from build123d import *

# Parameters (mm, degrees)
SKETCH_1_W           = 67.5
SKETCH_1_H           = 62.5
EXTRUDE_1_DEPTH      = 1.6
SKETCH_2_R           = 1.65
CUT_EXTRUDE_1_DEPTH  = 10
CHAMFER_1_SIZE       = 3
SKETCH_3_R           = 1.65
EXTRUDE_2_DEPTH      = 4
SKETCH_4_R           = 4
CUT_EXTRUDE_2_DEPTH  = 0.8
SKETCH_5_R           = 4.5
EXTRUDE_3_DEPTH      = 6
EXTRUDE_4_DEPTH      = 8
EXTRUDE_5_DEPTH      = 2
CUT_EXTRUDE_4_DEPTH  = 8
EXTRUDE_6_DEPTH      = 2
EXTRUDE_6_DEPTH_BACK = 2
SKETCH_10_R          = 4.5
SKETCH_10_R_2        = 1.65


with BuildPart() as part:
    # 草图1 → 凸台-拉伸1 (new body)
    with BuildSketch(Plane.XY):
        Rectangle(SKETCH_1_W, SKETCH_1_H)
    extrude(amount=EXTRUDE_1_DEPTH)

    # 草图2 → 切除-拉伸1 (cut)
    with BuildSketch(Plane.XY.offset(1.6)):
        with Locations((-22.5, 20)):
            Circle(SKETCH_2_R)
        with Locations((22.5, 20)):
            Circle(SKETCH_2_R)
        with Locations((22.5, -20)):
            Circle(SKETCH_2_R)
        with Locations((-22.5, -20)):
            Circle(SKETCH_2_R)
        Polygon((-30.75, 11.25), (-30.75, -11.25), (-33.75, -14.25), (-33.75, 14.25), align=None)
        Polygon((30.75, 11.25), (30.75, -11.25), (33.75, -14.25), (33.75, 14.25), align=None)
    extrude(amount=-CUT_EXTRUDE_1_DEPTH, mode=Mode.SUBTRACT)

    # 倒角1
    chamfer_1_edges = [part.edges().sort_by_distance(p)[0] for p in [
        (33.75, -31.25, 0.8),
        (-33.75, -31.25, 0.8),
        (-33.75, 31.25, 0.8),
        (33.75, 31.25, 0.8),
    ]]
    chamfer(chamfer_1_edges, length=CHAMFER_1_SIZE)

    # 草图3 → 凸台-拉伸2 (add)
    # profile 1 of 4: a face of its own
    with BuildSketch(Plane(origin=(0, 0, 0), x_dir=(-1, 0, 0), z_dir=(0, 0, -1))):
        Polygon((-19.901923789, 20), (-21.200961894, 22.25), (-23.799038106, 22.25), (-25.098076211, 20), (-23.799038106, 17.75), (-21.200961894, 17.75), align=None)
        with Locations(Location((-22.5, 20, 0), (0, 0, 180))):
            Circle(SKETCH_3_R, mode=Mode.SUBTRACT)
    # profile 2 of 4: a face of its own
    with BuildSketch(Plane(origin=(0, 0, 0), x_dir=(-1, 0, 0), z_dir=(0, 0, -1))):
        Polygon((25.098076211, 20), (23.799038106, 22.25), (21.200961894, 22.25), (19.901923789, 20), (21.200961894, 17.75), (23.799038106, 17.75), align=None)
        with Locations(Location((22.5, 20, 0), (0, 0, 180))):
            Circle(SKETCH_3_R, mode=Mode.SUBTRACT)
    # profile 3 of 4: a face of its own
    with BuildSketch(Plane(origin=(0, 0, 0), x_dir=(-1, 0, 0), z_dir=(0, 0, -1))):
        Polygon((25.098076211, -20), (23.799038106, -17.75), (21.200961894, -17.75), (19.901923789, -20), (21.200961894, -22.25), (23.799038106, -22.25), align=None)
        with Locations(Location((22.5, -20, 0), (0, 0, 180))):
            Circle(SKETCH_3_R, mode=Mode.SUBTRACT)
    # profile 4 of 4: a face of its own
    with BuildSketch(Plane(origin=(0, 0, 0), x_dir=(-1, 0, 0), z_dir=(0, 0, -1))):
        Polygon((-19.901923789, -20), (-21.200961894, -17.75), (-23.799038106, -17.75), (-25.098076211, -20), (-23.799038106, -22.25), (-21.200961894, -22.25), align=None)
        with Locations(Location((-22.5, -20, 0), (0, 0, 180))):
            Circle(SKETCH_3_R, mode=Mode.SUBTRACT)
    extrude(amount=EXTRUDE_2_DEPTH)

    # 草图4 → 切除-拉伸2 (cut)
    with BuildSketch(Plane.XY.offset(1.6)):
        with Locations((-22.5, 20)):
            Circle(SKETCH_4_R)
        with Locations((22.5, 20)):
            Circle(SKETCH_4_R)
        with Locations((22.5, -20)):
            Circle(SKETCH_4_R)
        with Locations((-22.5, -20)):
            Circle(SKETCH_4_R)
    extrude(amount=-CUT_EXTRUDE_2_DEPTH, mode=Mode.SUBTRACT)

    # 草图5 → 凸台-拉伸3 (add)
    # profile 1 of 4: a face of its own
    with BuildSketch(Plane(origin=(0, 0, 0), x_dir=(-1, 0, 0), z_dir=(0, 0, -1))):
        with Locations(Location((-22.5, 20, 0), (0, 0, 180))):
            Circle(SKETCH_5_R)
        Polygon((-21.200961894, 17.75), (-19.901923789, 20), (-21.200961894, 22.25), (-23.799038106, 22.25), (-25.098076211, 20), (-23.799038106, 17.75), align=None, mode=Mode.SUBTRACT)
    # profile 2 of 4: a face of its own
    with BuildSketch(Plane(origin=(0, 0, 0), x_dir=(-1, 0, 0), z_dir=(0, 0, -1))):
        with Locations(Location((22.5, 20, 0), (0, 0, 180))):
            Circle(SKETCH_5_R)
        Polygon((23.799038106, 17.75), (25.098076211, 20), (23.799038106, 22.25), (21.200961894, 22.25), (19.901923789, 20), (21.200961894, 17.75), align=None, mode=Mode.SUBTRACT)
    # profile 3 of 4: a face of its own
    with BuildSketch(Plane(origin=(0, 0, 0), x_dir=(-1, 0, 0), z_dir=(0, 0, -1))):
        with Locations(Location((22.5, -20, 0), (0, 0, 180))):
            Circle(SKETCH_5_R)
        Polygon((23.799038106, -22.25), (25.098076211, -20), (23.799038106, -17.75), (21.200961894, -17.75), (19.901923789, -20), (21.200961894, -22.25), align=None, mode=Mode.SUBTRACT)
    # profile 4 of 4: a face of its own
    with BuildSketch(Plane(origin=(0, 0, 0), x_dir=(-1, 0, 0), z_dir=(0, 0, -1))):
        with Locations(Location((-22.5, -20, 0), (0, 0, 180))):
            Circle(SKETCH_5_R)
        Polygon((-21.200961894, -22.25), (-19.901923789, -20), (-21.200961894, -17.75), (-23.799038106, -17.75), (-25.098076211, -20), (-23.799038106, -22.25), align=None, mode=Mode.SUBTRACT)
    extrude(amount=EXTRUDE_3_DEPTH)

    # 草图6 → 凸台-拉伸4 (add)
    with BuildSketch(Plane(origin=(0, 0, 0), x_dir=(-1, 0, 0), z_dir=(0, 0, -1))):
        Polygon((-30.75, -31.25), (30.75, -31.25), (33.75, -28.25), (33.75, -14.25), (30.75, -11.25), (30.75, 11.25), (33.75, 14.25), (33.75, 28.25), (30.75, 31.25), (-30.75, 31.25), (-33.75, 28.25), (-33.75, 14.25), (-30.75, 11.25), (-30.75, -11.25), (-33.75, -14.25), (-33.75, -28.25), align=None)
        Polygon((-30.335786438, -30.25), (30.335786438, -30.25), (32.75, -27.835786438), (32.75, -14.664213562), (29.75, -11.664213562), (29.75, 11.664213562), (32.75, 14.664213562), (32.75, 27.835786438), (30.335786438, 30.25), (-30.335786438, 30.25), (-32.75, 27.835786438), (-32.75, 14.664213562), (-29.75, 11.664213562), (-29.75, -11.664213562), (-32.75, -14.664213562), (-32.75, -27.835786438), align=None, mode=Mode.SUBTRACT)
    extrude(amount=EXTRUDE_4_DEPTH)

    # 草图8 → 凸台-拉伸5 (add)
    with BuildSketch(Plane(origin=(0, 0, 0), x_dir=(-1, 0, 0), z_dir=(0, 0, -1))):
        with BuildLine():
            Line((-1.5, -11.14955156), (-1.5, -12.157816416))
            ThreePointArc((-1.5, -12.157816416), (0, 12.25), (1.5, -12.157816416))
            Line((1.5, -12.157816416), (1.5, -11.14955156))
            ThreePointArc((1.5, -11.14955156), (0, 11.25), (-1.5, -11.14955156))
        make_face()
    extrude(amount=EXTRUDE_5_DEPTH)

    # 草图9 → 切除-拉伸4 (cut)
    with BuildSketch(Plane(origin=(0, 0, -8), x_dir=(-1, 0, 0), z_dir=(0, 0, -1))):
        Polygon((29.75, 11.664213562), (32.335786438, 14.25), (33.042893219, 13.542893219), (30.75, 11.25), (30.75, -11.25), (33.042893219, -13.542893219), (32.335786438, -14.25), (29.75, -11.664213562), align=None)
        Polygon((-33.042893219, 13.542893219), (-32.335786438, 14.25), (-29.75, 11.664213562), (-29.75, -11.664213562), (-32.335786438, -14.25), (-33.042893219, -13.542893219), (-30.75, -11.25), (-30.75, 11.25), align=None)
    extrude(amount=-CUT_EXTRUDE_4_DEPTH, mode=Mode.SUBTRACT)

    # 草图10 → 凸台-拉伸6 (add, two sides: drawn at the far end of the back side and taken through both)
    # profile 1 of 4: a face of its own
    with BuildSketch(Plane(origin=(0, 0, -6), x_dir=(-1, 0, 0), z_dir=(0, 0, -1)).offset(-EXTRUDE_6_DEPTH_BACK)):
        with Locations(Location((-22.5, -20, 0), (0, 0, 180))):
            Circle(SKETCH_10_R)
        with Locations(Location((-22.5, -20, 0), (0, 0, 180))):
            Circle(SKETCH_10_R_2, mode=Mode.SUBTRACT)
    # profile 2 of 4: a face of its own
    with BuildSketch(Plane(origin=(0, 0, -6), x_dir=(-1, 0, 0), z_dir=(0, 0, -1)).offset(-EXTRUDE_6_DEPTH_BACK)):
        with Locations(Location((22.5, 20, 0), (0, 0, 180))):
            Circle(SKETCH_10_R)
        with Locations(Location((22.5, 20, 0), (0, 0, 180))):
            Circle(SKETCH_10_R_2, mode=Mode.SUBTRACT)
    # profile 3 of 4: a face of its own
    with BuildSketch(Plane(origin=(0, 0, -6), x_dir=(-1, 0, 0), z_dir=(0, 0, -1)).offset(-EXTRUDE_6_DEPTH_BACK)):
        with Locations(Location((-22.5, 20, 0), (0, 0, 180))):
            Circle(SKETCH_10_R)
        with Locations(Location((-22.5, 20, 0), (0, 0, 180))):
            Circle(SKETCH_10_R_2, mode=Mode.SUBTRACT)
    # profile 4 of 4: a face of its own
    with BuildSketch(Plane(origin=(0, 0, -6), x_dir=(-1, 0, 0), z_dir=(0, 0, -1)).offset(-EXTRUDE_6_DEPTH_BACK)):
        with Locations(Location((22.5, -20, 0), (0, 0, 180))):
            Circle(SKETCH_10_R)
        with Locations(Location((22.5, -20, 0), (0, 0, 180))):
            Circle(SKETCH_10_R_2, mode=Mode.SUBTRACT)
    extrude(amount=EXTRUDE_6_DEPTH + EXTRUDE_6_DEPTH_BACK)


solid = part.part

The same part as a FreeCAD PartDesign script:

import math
import FreeCAD as App
import Part
import Sketcher

V = App.Vector
Q = App.Units.Quantity


def edges_at(feature, points):
    """Names of the edges that pass closest to the given points."""
    edges = feature.Shape.Edges
    near = lambda p: min(range(len(edges)), key=lambda i: edges[i].distToShape(Part.Vertex(*p))[0])
    return sorted({f"Edge{near(p) + 1}" for p in points})


def add_polygon(sketch, points):
    """Adds a closed chain of lines whose ends are joined by coincident constraints."""
    first, n = sketch.GeometryCount, len(points)
    for a, b in zip(points, points[1:] + points[:1]):
        sketch.addGeometry(Part.LineSegment(App.Vector(*a, 0), App.Vector(*b, 0)), False)
    for i in range(n):
        sketch.addConstraint(Sketcher.Constraint("Coincident", first + i, 2, first + (i + 1) % n, 1))

doc = App.newDocument("Part")
body = doc.addObject("PartDesign::Body", "Body")

# Sketch on XY plane
sketch1 = body.newObject("Sketcher::SketchObject", "Sketch")
sketch1.AttachmentSupport = (doc.getObject("XY_Plane"), [""])
sketch1.MapMode = "FlatFace"
add_polygon(sketch1, [(-34, 31), (-34, -31), (34, -31), (34, 31)])  # lines 0-3
sketch1.addConstraint([
    Sketcher.Constraint("Vertical", 0),
    Sketcher.Constraint("Horizontal", 1),
    Sketcher.Constraint("Vertical", 2),
    Sketcher.Constraint("Horizontal", 3),
    Sketcher.Constraint("Symmetric", 0, 2, 2, 2, -1, 1),
    Sketcher.Constraint("DistanceX", 1, 1, 1, 2, 67.5),
    Sketcher.Constraint("DistanceY", 0, 2, 0, 1, 62.5),
])
pad1 = body.newObject("PartDesign::Pad", "Pad")
pad1.Profile = sketch1
pad1.Length = 1.6

# Sketch on XY plane
sketch2 = body.newObject("Sketcher::SketchObject", "Sketch001")
sketch2.AttachmentSupport = (doc.getObject("XY_Plane"), [""])
sketch2.MapMode = "FlatFace"
sketch2.AttachmentOffset = App.Placement(V(0, 0, 1.6), App.Rotation())
sketch2.addGeometry(Part.Circle(V(-22.5, 20, 0), V(0, 0, 1), 1.6), False)  # 0
sketch2.addGeometry(Part.Circle(V(22.5, 20, 0), V(0, 0, 1), 1.6), False)  # 1
sketch2.addGeometry(Part.Circle(V(22.5, -20, 0), V(0, 0, 1), 1.6), False)  # 2
sketch2.addGeometry(Part.Circle(V(-22.5, -20, 0), V(0, 0, 1), 1.6), False)  # 3
add_polygon(sketch2, [(-30.8, -11.2), (-30.8, 11.2), (-33.8, 14.2), (-33.8, -14.2)])  # lines 4-7
add_polygon(sketch2, [(30.8, 11.2), (30.8, -11.2), (33.8, -14.2), (33.8, 14.2)])  # lines 8-11
sketch2.addConstraint([
    Sketcher.Constraint("Vertical", 4),
    Sketcher.Constraint("Vertical", 6),
    Sketcher.Constraint("Vertical", 8),
    Sketcher.Constraint("Vertical", 10),
    Sketcher.Constraint("Equal", 0, 1),
    Sketcher.Constraint("Equal", 1, 2),
    Sketcher.Constraint("Equal", 2, 3),
    Sketcher.Constraint("Symmetric", 0, 3, 2, 3, -1, 1),
    Sketcher.Constraint("Symmetric", 1, 3, 3, 3, -1, 1),
    Sketcher.Constraint("Symmetric", 4, 2, 8, 2, -1, 1),
    Sketcher.Constraint("Symmetric", 5, 2, 9, 2, -1, 1),
    Sketcher.Constraint("Symmetric", 0, 3, 1, 3, -2),
    Sketcher.Constraint("Perpendicular", 5, 7),
    Sketcher.Constraint("Perpendicular", 9, 11),
    Sketcher.Constraint("Horizontal", 7, 2, 8, 2),
    Sketcher.Constraint("Horizontal", 6, 2, 9, 2),
    Sketcher.Constraint("Horizontal", 5, 2, 10, 2),
    Sketcher.Constraint("Diameter", 0, 3.3),
    Sketcher.Constraint("DistanceY", 4, 1, 4, 2, 22.5),
    Sketcher.Constraint("DistanceY", 6, 2, 6, 1, 28.5),
    Sketcher.Constraint("DistanceY", -1, 1, 0, 3, 20.0),
    Sketcher.Constraint("DistanceX", 0, 3, 1, 3, 45.0),
    Sketcher.Constraint("DistanceX", 7, 2, 8, 2, 61.5),
])
pocket1 = body.newObject("PartDesign::Pocket", "Pocket")
pocket1.Profile = sketch2
pocket1.Length = 10
doc.recompute()

chamfer = body.newObject("PartDesign::Chamfer", "Chamfer")
chamfer.Base = (pocket1, edges_at(pocket1, [
    (33.75, -31.25, 0.8),
    (-33.75, -31.25, 0.8),
    (-33.75, 31.25, 0.8),
    (33.75, 31.25, 0.8),
]))
chamfer.Size = 3

# Sketch on XY plane
sketch3 = body.newObject("Sketcher::SketchObject", "Sketch002")
sketch3.AttachmentSupport = (doc.getObject("XY_Plane"), [""])
sketch3.MapMode = "FlatFace"
add_polygon(sketch3, [(19.9, 20), (21.2, 22.2), (23.8, 22.2), (25.1, 20), (23.8, 17.8), (21.2, 17.8)])  # lines 0-5
sketch3.addGeometry(Part.Circle(V(22.5, 20, 0), V(0, 0, 1), 1.6), False)  # 6
add_polygon(sketch3, [(-25.1, 20), (-23.8, 22.2), (-21.2, 22.2), (-19.9, 20), (-21.2, 17.8), (-23.8, 17.8)])  # lines 7-12
sketch3.addGeometry(Part.Circle(V(-22.5, 20, 0), V(0, 0, 1), 1.6), False)  # 13
add_polygon(sketch3, [(-25.1, -20), (-23.8, -17.8), (-21.2, -17.8), (-19.9, -20), (-21.2, -22.2), (-23.8, -22.2)])  # lines 14-19
sketch3.addGeometry(Part.Circle(V(-22.5, -20, 0), V(0, 0, 1), 1.6), False)  # 20
add_polygon(sketch3, [(19.9, -20), (21.2, -17.8), (23.8, -17.8), (25.1, -20), (23.8, -22.2), (21.2, -22.2)])  # lines 21-26
sketch3.addGeometry(Part.Circle(V(22.5, -20, 0), V(0, 0, 1), 1.6), False)  # 27
sketch3.addConstraint([
    Sketcher.Constraint("Horizontal", 1),
    Sketcher.Constraint("Horizontal", 4),
    Sketcher.Constraint("Horizontal", 8),
    Sketcher.Constraint("Horizontal", 11),
    Sketcher.Constraint("Horizontal", 15),
    Sketcher.Constraint("Horizontal", 18),
    Sketcher.Constraint("Horizontal", 22),
    Sketcher.Constraint("Horizontal", 25),
    Sketcher.Constraint("Equal", 6, 13),
    Sketcher.Constraint("Equal", 13, 20),
    Sketcher.Constraint("Equal", 20, 27),
    Sketcher.Constraint("Symmetric", 6, 3, 20, 3, -1, 1),
    Sketcher.Constraint("Symmetric", 13, 3, 27, 3, -1, 1),
    Sketcher.Constraint("Symmetric", 3, 2, 14, 2, -1, 1),
    Sketcher.Constraint("Symmetric", 5, 2, 16, 2, -1, 1),
    Sketcher.Constraint("Symmetric", 0, 2, 17, 2, -1, 1),
    Sketcher.Constraint("Symmetric", 2, 2, 19, 2, -1, 1),
    Sketcher.Constraint("Symmetric", 10, 2, 21, 2, -1, 1),
    Sketcher.Constraint("Symmetric", 12, 2, 23, 2, -1, 1),
    Sketcher.Constraint("Symmetric", 7, 2, 24, 2, -1, 1),
    Sketcher.Constraint("Symmetric", 9, 2, 26, 2, -1, 1),
    Sketcher.Constraint("Symmetric", 6, 3, 13, 3, -2),
    Sketcher.Constraint("Symmetric", 1, 2, 7, 2, -2),
    Sketcher.Constraint("Symmetric", 5, 2, 9, 2, -2),
    Sketcher.Constraint("Symmetric", 4, 2, 10, 2, -2),
    Sketcher.Constraint("Symmetric", 2, 2, 12, 2, -2),
    Sketcher.Constraint("Parallel", 0, 3),
    Sketcher.Constraint("Parallel", 2, 5),
    Sketcher.Constraint("Parallel", 3, 7),
    Sketcher.Constraint("Parallel", 5, 9),
    Sketcher.Constraint("Parallel", 9, 12),
    Sketcher.Constraint("Parallel", 12, 16),
    Sketcher.Constraint("Parallel", 16, 19),
    Sketcher.Constraint("Parallel", 19, 23),
    Sketcher.Constraint("Parallel", 23, 26),
    Sketcher.Constraint("Horizontal", 13, 3, 2, 2),
    Sketcher.Constraint("Horizontal", 2, 2, 5, 2),
    Sketcher.Constraint("Vertical", 1, 2, 3, 2),
    Sketcher.Constraint("Diameter", 6, 3.3),
    Sketcher.Constraint("Angle", 0, Q("60 deg")),
    Sketcher.Constraint("DistanceY", -1, 1, 6, 3, 20.0),
    Sketcher.Constraint("DistanceX", 13, 3, 6, 3, 45.0),
    Sketcher.Constraint("DistanceX", 7, 2, 0, 2, 45.0),
    Sketcher.Constraint("DistanceY", 3, 2, 1, 2, 4.5),
    Sketcher.Constraint("DistanceX", 1, 1, 1, 2, 2.598076),
])
pad2 = body.newObject("PartDesign::Pad", "Pad001")
pad2.Profile = sketch3
pad2.Length = 4
pad2.Reversed = True

# Sketch on XY plane
sketch4 = body.newObject("Sketcher::SketchObject", "Sketch003")
sketch4.AttachmentSupport = (doc.getObject("XY_Plane"), [""])
sketch4.MapMode = "FlatFace"
sketch4.AttachmentOffset = App.Placement(V(0, 0, 1.6), App.Rotation())
sketch4.addGeometry([
    Part.Circle(V(-22.5, 20, 0), V(0, 0, 1), 4),
    Part.Circle(V(22.5, 20, 0), V(0, 0, 1), 4),
    Part.Circle(V(22.5, -20, 0), V(0, 0, 1), 4),
    Part.Circle(V(-22.5, -20, 0), V(0, 0, 1), 4),
], False)
sketch4.addConstraint([
    Sketcher.Constraint("Equal", 0, 1),
    Sketcher.Constraint("Equal", 1, 2),
    Sketcher.Constraint("Equal", 2, 3),
    Sketcher.Constraint("Symmetric", 0, 3, 2, 3, -1, 1),
    Sketcher.Constraint("Symmetric", 1, 3, 3, 3, -1, 1),
    Sketcher.Constraint("Symmetric", 0, 3, 1, 3, -2),
    Sketcher.Constraint("Diameter", 0, 8.0),
    Sketcher.Constraint("DistanceY", -1, 1, 0, 3, 20.0),
    Sketcher.Constraint("DistanceX", 0, 3, 1, 3, 45.0),
])
pocket2 = body.newObject("PartDesign::Pocket", "Pocket001")
pocket2.Profile = sketch4
pocket2.Length = 0.8

# Sketch on XY plane
sketch5 = body.newObject("Sketcher::SketchObject", "Sketch004")
sketch5.AttachmentSupport = (doc.getObject("XY_Plane"), [""])
sketch5.MapMode = "FlatFace"
sketch5.addGeometry(Part.Circle(V(22.5, 20, 0), V(0, 0, 1), 4.5), False)  # 0
add_polygon(sketch5, [(19.9, 20), (21.2, 17.8), (23.8, 17.8), (25.1, 20), (23.8, 22.2), (21.2, 22.2)])  # lines 1-6
sketch5.addGeometry(Part.Circle(V(-22.5, 20, 0), V(0, 0, 1), 4.5), False)  # 7
add_polygon(sketch5, [(-25.1, 20), (-23.8, 17.8), (-21.2, 17.8), (-19.9, 20), (-21.2, 22.2), (-23.8, 22.2)])  # lines 8-13
sketch5.addGeometry(Part.Circle(V(-22.5, -20, 0), V(0, 0, 1), 4.5), False)  # 14
add_polygon(sketch5, [(-25.1, -20), (-23.8, -22.2), (-21.2, -22.2), (-19.9, -20), (-21.2, -17.8), (-23.8, -17.8)])  # lines 15-20
sketch5.addGeometry(Part.Circle(V(22.5, -20, 0), V(0, 0, 1), 4.5), False)  # 21
add_polygon(sketch5, [(19.9, -20), (21.2, -22.2), (23.8, -22.2), (25.1, -20), (23.8, -17.8), (21.2, -17.8)])  # lines 22-27
sketch5.addConstraint([
    Sketcher.Constraint("Horizontal", 2),
    Sketcher.Constraint("Horizontal", 5),
    Sketcher.Constraint("Horizontal", 9),
    Sketcher.Constraint("Horizontal", 12),
    Sketcher.Constraint("Horizontal", 16),
    Sketcher.Constraint("Horizontal", 19),
    Sketcher.Constraint("Horizontal", 23),
    Sketcher.Constraint("Horizontal", 26),
    Sketcher.Constraint("Equal", 0, 7),
    Sketcher.Constraint("Equal", 7, 14),
    Sketcher.Constraint("Equal", 14, 21),
    Sketcher.Constraint("Symmetric", 0, 3, 14, 3, -1, 1),
    Sketcher.Constraint("Symmetric", 7, 3, 21, 3, -1, 1),
    Sketcher.Constraint("Symmetric", 4, 2, 15, 2, -1, 1),
    Sketcher.Constraint("Symmetric", 6, 2, 17, 2, -1, 1),
    Sketcher.Constraint("Symmetric", 1, 2, 18, 2, -1, 1),
    Sketcher.Constraint("Symmetric", 3, 2, 20, 2, -1, 1),
    Sketcher.Constraint("Symmetric", 11, 2, 22, 2, -1, 1),
    Sketcher.Constraint("Symmetric", 13, 2, 24, 2, -1, 1),
    Sketcher.Constraint("Symmetric", 8, 2, 25, 2, -1, 1),
    Sketcher.Constraint("Symmetric", 10, 2, 27, 2, -1, 1),
    Sketcher.Constraint("Symmetric", 0, 3, 7, 3, -2),
    Sketcher.Constraint("Symmetric", 2, 2, 8, 2, -2),
    Sketcher.Constraint("Symmetric", 6, 2, 10, 2, -2),
    Sketcher.Constraint("Symmetric", 5, 2, 11, 2, -2),
    Sketcher.Constraint("Symmetric", 3, 2, 13, 2, -2),
    Sketcher.Constraint("Parallel", 1, 4),
    Sketcher.Constraint("Parallel", 3, 6),
    Sketcher.Constraint("Parallel", 4, 8),
    Sketcher.Constraint("Parallel", 6, 10),
    Sketcher.Constraint("Parallel", 10, 13),
    Sketcher.Constraint("Parallel", 13, 17),
    Sketcher.Constraint("Parallel", 17, 20),
    Sketcher.Constraint("Parallel", 20, 24),
    Sketcher.Constraint("Parallel", 24, 27),
    Sketcher.Constraint("Horizontal", 7, 3, 3, 2),
    Sketcher.Constraint("Horizontal", 3, 2, 6, 2),
    Sketcher.Constraint("Vertical", 2, 2, 4, 2),
    Sketcher.Constraint("Diameter", 0, 9.0),
    Sketcher.Constraint("Angle", 1, Q("-60 deg")),
    Sketcher.Constraint("DistanceY", -1, 1, 0, 3, 20.0),
    Sketcher.Constraint("DistanceX", 7, 3, 0, 3, 45.0),
    Sketcher.Constraint("DistanceX", 8, 2, 1, 2, 45.0),
    Sketcher.Constraint("DistanceY", 2, 2, 4, 2, 4.5),
    Sketcher.Constraint("DistanceX", 2, 1, 2, 2, 2.598076),
])
pad3 = body.newObject("PartDesign::Pad", "Pad002")
pad3.Profile = sketch5
pad3.Length = 6
pad3.Reversed = True

# Sketch on XY plane
sketch6 = body.newObject("Sketcher::SketchObject", "Sketch005")
sketch6.AttachmentSupport = (doc.getObject("XY_Plane"), [""])
sketch6.MapMode = "FlatFace"
add_polygon(sketch6, [(30.8, -31.2), (-30.8, -31.2), (-33.8, -28.2), (-33.8, -14.2), (-30.8, -11.2), (-30.8, 11.2), (-33.8, 14.2), (-33.8, 28.2), (-30.8, 31.2), (30.8, 31.2), (33.8, 28.2), (33.8, 14.2), (30.8, 11.2), (30.8, -11.2), (33.8, -14.2), (33.8, -28.2)])  # lines 0-15
add_polygon(sketch6, [(-30.3, -30.2), (30.3, -30.2), (32.8, -27.8), (32.8, -14.7), (29.8, -11.7), (29.8, 11.7), (32.8, 14.7), (32.8, 27.8), (30.3, 30.2), (-30.3, 30.2), (-32.8, 27.8), (-32.8, 14.7), (-29.8, 11.7), (-29.8, -11.7), (-32.8, -14.7), (-32.8, -27.8)])  # lines 16-31
sketch6.addConstraint([
    Sketcher.Constraint("Horizontal", 0),
    Sketcher.Constraint("Vertical", 2),
    Sketcher.Constraint("Vertical", 4),
    Sketcher.Constraint("Vertical", 6),
    Sketcher.Constraint("Horizontal", 8),
    Sketcher.Constraint("Vertical", 10),
    Sketcher.Constraint("Vertical", 12),
    Sketcher.Constraint("Vertical", 14),
    Sketcher.Constraint("Horizontal", 16),
    Sketcher.Constraint("Vertical", 18),
    Sketcher.Constraint("Vertical", 20),
    Sketcher.Constraint("Vertical", 22),
    Sketcher.Constraint("Horizontal", 24),
    Sketcher.Constraint("Vertical", 26),
    Sketcher.Constraint("Vertical", 28),
    Sketcher.Constraint("Vertical", 30),
    Sketcher.Constraint("Symmetric", 0, 2, 8, 2, -1, 1),
    Sketcher.Constraint("Symmetric", 1, 2, 9, 2, -1, 1),
    Sketcher.Constraint("Symmetric", 3, 2, 11, 2, -1, 1),
    Sketcher.Constraint("Symmetric", 5, 2, 13, 2, -1, 1),
    Sketcher.Constraint("Symmetric", 16, 2, 24, 2, -1, 1),
    Sketcher.Constraint("Symmetric", 17, 2, 25, 2, -1, 1),
    Sketcher.Constraint("Symmetric", 19, 2, 27, 2, -1, 1),
    Sketcher.Constraint("Symmetric", 21, 2, 29, 2, -1, 1),
    Sketcher.Constraint("Symmetric", 6, 2, 9, 2, -2),
    Sketcher.Constraint("Symmetric", 22, 2, 25, 2, -2),
    Sketcher.Constraint("Perpendicular", 1, 3),
    Sketcher.Constraint("Perpendicular", 3, 5),
    Sketcher.Constraint("Perpendicular", 5, 7),
    Sketcher.Constraint("Perpendicular", 9, 11),
    Sketcher.Constraint("Perpendicular", 11, 13),
    Sketcher.Constraint("Perpendicular", 13, 15),
    Sketcher.Constraint("Parallel", 15, 17),
    Sketcher.Constraint("Perpendicular", 17, 19),
    Sketcher.Constraint("Perpendicular", 19, 21),
    Sketcher.Constraint("Perpendicular", 21, 23),
    Sketcher.Constraint("Perpendicular", 25, 27),
    Sketcher.Constraint("Perpendicular", 27, 29),
    Sketcher.Constraint("Perpendicular", 29, 31),
    Sketcher.Constraint("Horizontal", 5, 2, 10, 2),
    Sketcher.Constraint("Horizontal", 4, 2, 11, 2),
    Sketcher.Constraint("Horizontal", 1, 2, 14, 2),
    Sketcher.Constraint("Horizontal", 21, 2, 26, 2),
    Sketcher.Constraint("Horizontal", 17, 2, 30, 2),
    Sketcher.Constraint("Vertical", 0, 2, 3, 2),
    Sketcher.Constraint("Equal", 15, 19),
    Sketcher.Constraint("DistanceY", 2, 1, 2, 2, 14.0),
    Sketcher.Constraint("DistanceX", 0, 2, 0, 1, 61.5),
    Sketcher.Constraint("DistanceY", 4, 1, 4, 2, 22.5),
    Sketcher.Constraint("DistanceX", 1, 2, 0, 2, 3.0),
    Sketcher.Constraint("DistanceY", 15, 2, 16, 2, 1.0),
    Sketcher.Constraint("DistanceX", 17, 2, 14, 2, 1.0),
    Sketcher.Constraint("DistanceX", 16, 1, 16, 2, 60.671573),
    Sketcher.Constraint("DistanceY", 18, 1, 18, 2, 13.171573),
])
pad4 = body.newObject("PartDesign::Pad", "Pad003")
pad4.Profile = sketch6
pad4.Length = 8
pad4.Reversed = True

# Sketch on XY plane
sketch7 = body.newObject("Sketcher::SketchObject", "Sketch006")
sketch7.AttachmentSupport = (doc.getObject("XY_Plane"), [""])
sketch7.MapMode = "FlatFace"
sketch7.addGeometry([
    Part.LineSegment(V(1.5, -12.2, 0), V(1.5, -11.1, 0)),
    Part.ArcOfCircle(Part.Circle(V(0, 0, 0), V(0, 0, 1), 11.2), math.radians(-82), math.radians(262)),
    Part.LineSegment(V(-1.5, -11.1, 0), V(-1.5, -12.2, 0)),
    Part.ArcOfCircle(Part.Circle(V(0, 0, 0), V(0, 0, 1), 12.2), math.radians(-83), math.radians(263)),
], False)
sketch7.addConstraint([
    Sketcher.Constraint("Coincident", 0, 2, 1, 1),
    Sketcher.Constraint("Coincident", 1, 2, 2, 1),
    Sketcher.Constraint("Coincident", 2, 2, 3, 2),
    Sketcher.Constraint("Coincident", 3, 1, 0, 1),
    Sketcher.Constraint("Vertical", 0),
    Sketcher.Constraint("Vertical", 2),
    Sketcher.Constraint("Coincident", 1, 3, -1, 1),
    Sketcher.Constraint("Coincident", 3, 3, -1, 1),
    Sketcher.Constraint("Horizontal", 0, 2, 1, 2),
    Sketcher.Constraint("Radius", 1, 11.25),
    Sketcher.Constraint("Radius", 3, 12.25),
    Sketcher.Constraint("DistanceX", 1, 2, 0, 2, 3.0),
])
pad5 = body.newObject("PartDesign::Pad", "Pad004")
pad5.Profile = sketch7
pad5.Length = 2
pad5.Reversed = True

# Sketch on XY plane
sketch8 = body.newObject("Sketcher::SketchObject", "Sketch007")
sketch8.AttachmentSupport = (doc.getObject("XY_Plane"), [""])
sketch8.MapMode = "FlatFace"
sketch8.AttachmentOffset = App.Placement(V(0, 0, -8), App.Rotation())
add_polygon(sketch8, [(-32.3, 14.2), (-29.8, 11.7), (-29.8, -11.7), (-32.3, -14.2), (-33, -13.5), (-30.8, -11.2), (-30.8, 11.2), (-33, 13.5)])  # lines 0-7
add_polygon(sketch8, [(32.3, 14.2), (33, 13.5), (30.8, 11.2), (30.8, -11.2), (33, -13.5), (32.3, -14.2), (29.8, -11.7), (29.8, 11.7)])  # lines 8-15
sketch8.addConstraint([
    Sketcher.Constraint("Vertical", 1),
    Sketcher.Constraint("Vertical", 5),
    Sketcher.Constraint("Vertical", 10),
    Sketcher.Constraint("Vertical", 14),
    Sketcher.Constraint("Symmetric", 3, 2, 8, 2, -1, 1),
    Sketcher.Constraint("Symmetric", 4, 2, 9, 2, -1, 1),
    Sketcher.Constraint("Symmetric", 6, 2, 11, 2, -1, 1),
    Sketcher.Constraint("Symmetric", 7, 2, 12, 2, -1, 1),
    Sketcher.Constraint("Symmetric", 0, 2, 13, 2, -1, 1),
    Sketcher.Constraint("Symmetric", 2, 2, 15, 2, -1, 1),
    Sketcher.Constraint("Symmetric", 6, 2, 8, 2, -2),
    Sketcher.Constraint("Symmetric", 2, 2, 12, 2, -2),
    Sketcher.Constraint("Perpendicular", 0, 2),
    Sketcher.Constraint("Perpendicular", 2, 3),
    Sketcher.Constraint("Perpendicular", 3, 4),
    Sketcher.Constraint("Perpendicular", 4, 6),
    Sketcher.Constraint("Perpendicular", 6, 7),
    Sketcher.Constraint("Perpendicular", 9, 11),
    Sketcher.Constraint("Perpendicular", 13, 15),
    Sketcher.Constraint("Distance", 3, 1.0),
    Sketcher.Constraint("DistanceY", 5, 1, 5, 2, 22.5),
    Sketcher.Constraint("DistanceX", 4, 2, 1, 2, 1.0),
    Sketcher.Constraint("DistanceY", 2, 2, 4, 2, 3.0),
    Sketcher.Constraint("DistanceX", 0, 2, 9, 2, 60.5),
])
pocket3 = body.newObject("PartDesign::Pocket", "Pocket002")
pocket3.Profile = sketch8
pocket3.Length = 8
pocket3.Reversed = True

# Sketch on XY plane
sketch9 = body.newObject("Sketcher::SketchObject", "Sketch008")
sketch9.AttachmentSupport = (doc.getObject("XY_Plane"), [""])
sketch9.MapMode = "FlatFace"
sketch9.AttachmentOffset = App.Placement(V(0, 0, -6), App.Rotation())
sketch9.addGeometry([
    Part.Circle(V(22.5, -20, 0), V(0, 0, 1), 4.5),  # 0
    Part.Circle(V(22.5, -20, 0), V(0, 0, 1), 1.6),  # 1
    Part.Circle(V(-22.5, 20, 0), V(0, 0, 1), 4.5),  # 2
    Part.Circle(V(-22.5, 20, 0), V(0, 0, 1), 1.6),  # 3
    Part.Circle(V(22.5, 20, 0), V(0, 0, 1), 4.5),  # 4
    Part.Circle(V(22.5, 20, 0), V(0, 0, 1), 1.6),  # 5
    Part.Circle(V(-22.5, -20, 0), V(0, 0, 1), 4.5),  # 6
    Part.Circle(V(-22.5, -20, 0), V(0, 0, 1), 1.6),  # 7
], False)
sketch9.addConstraint([
    Sketcher.Constraint("Coincident", 1, 3, 0, 3),
    Sketcher.Constraint("Coincident", 3, 3, 2, 3),
    Sketcher.Constraint("Coincident", 5, 3, 4, 3),
    Sketcher.Constraint("Coincident", 7, 3, 6, 3),
    Sketcher.Constraint("Equal", 0, 2),
    Sketcher.Constraint("Equal", 1, 3),
    Sketcher.Constraint("Equal", 2, 4),
    Sketcher.Constraint("Equal", 3, 5),
    Sketcher.Constraint("Equal", 4, 6),
    Sketcher.Constraint("Equal", 5, 7),
    Sketcher.Constraint("Symmetric", 0, 3, 2, 3, -1, 1),
    Sketcher.Constraint("Symmetric", 4, 3, 6, 3, -1, 1),
    Sketcher.Constraint("Symmetric", 2, 3, 4, 3, -2),
    Sketcher.Constraint("Diameter", 0, 9.0),
    Sketcher.Constraint("Diameter", 1, 3.3),
    Sketcher.Constraint("DistanceY", 0, 3, -1, 1, 20.0),
    Sketcher.Constraint("DistanceX", 2, 3, 0, 3, 45.0),
])
pad6 = body.newObject("PartDesign::Pad", "Pad005")
pad6.Profile = sketch9
pad6.Type = "TwoLengths"
pad6.Length = 2
pad6.Length2 = 2
pad6.Reversed = True

doc.recompute()
